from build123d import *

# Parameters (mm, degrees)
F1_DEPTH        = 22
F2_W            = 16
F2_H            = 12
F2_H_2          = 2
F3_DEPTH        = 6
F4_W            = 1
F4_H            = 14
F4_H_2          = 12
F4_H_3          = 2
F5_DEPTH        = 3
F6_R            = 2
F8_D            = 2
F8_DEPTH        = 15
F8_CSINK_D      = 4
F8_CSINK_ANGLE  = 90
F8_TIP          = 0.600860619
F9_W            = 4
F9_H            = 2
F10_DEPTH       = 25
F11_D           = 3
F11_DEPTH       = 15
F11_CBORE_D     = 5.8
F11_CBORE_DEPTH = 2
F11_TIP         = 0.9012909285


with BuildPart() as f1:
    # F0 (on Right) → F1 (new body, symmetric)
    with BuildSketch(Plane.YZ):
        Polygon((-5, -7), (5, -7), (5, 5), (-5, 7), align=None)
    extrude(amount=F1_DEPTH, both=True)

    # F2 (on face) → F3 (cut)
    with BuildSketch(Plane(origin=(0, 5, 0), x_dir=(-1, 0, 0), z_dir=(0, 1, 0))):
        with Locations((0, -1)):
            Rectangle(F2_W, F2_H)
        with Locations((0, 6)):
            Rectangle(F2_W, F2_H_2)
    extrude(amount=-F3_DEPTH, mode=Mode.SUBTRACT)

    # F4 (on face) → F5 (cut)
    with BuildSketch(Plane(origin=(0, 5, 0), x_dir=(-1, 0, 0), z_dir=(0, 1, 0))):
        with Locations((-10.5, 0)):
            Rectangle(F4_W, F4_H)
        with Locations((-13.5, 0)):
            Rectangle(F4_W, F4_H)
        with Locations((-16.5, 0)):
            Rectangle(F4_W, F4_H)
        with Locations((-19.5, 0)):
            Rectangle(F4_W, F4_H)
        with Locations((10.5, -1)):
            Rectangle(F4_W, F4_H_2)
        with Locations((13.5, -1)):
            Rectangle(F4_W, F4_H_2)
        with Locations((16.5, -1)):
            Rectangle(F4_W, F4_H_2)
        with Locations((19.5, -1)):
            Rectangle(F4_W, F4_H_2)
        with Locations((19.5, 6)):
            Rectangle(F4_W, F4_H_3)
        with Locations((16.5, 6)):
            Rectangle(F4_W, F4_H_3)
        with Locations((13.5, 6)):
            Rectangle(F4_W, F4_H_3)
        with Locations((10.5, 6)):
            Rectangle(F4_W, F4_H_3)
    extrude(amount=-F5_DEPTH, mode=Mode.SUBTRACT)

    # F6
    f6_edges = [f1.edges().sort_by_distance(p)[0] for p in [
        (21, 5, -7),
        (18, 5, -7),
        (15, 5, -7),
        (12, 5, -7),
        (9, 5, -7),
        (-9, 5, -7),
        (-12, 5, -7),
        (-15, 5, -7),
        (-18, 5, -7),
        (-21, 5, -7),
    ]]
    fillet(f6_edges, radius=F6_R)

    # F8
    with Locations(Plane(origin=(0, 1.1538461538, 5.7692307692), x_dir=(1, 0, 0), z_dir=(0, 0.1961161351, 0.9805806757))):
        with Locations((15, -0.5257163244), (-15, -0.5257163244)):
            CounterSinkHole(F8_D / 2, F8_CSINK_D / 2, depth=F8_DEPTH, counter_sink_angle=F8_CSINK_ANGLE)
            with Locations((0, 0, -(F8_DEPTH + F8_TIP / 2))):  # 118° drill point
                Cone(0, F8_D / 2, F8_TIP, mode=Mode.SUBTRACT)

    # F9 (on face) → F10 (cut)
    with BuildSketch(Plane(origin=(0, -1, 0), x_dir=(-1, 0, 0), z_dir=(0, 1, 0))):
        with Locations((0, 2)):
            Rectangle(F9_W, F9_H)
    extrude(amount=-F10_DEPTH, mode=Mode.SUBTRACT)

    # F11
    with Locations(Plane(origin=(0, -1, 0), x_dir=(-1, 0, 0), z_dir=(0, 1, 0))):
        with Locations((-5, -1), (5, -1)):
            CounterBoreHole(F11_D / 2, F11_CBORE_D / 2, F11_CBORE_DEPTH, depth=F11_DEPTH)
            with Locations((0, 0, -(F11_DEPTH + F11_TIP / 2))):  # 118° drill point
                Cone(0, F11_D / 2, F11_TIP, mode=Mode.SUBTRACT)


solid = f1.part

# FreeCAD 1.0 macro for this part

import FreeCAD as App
import Part
import Sketcher


def edges_at(feature, points):
    """Names of the edges that pass closest to the given points."""
    edges = feature.Shape.Edges
    near = lambda p: min(range(len(edges)), key=lambda i: edges[i].distToShape(Part.Vertex(*p))[0])
    return sorted({f"Edge{near(p) + 1}" for p in points})


def add_polygon(sketch, points):
    """Adds a closed chain of lines whose ends are joined by coincident constraints."""
    first, n = sketch.GeometryCount, len(points)
    for a, b in zip(points, points[1:] + points[:1]):
        sketch.addGeometry(Part.LineSegment(App.Vector(*a, 0), App.Vector(*b, 0)), False)
    for i in range(n):
        sketch.addConstraint(Sketcher.Constraint("Coincident", first + i, 2, first + (i + 1) % n, 1))

doc = App.newDocument("Part")
body = doc.addObject("PartDesign::Body", "Body")

sketch1 = body.newObject("Sketcher::SketchObject", "Sketch")
sketch1.AttachmentSupport = (doc.getObject("YZ_Plane"), [""])
sketch1.MapMode = "FlatFace"
add_polygon(sketch1, [(-5, -7), (5, -7), (5, 5), (-5, 7)])
sketch1.addConstraint([
    Sketcher.Constraint("Horizontal", 0),
    Sketcher.Constraint("Vertical", 1),
    Sketcher.Constraint("Vertical", 3),
    Sketcher.Constraint("Symmetric", 0, 2, 2, 2, -1, 1),
    Sketcher.Constraint("DistanceX", 0, 1, 0, 2, 10.0),
    Sketcher.Constraint("DistanceY", 1, 1, 1, 2, 12.0),
    Sketcher.Constraint("DistanceY", 3, 2, 3, 1, 14.0),
])
pad1 = body.newObject("PartDesign::Pad", "Pad")
pad1.Profile = sketch1
pad1.Length = 44
pad1.Midplane = True

sketch2 = body.newObject("Sketcher::SketchObject", "Sketch001")
sketch2.AttachmentSupport = (doc.getObject("XZ_Plane"), [""])
sketch2.MapMode = "FlatFace"
sketch2.AttachmentOffset = App.Placement(App.Vector(0, 0, -5), App.Rotation())
add_polygon(sketch2, [(8, -7), (-8, -7), (-8, 7), (8, 7)])
sketch2.addConstraint([
    Sketcher.Constraint("Horizontal", 0),
    Sketcher.Constraint("Vertical", 1),
    Sketcher.Constraint("Horizontal", 2),
    Sketcher.Constraint("Vertical", 3),
    Sketcher.Constraint("Symmetric", 0, 2, 2, 2, -1, 1),
    Sketcher.Constraint("DistanceX", 0, 2, 0, 1, 16.0),
    Sketcher.Constraint("DistanceY", 1, 1, 1, 2, 14.0),
])
pocket1 = body.newObject("PartDesign::Pocket", "Pocket")
pocket1.Profile = sketch2
pocket1.Length = 6
pocket1.Reversed = True

sketch3 = body.newObject("Sketcher::SketchObject", "Sketch002")
sketch3.AttachmentSupport = (doc.getObject("XZ_Plane"), [""])
sketch3.MapMode = "FlatFace"
sketch3.AttachmentOffset = App.Placement(App.Vector(0, 0, -5), App.Rotation())
add_polygon(sketch3, [(11, 7), (11, -7), (10, -7), (10, 7)])
add_polygon(sketch3, [(14, 7), (14, -7), (13, -7), (13, 7)])
add_polygon(sketch3, [(17, 7), (17, -7), (16, -7), (16, 7)])
add_polygon(sketch3, [(20, 7), (20, -7), (19, -7), (19, 7)])
add_polygon(sketch3, [(-10, -7), (-11, -7), (-11, 7), (-10, 7)])
add_polygon(sketch3, [(-13, -7), (-14, -7), (-14, 7), (-13, 7)])
add_polygon(sketch3, [(-16, -7), (-17, -7), (-17, 7), (-16, 7)])
add_polygon(sketch3, [(-19, -7), (-20, -7), (-20, 7), (-19, 7)])
sketch3.addConstraint([
    Sketcher.Constraint("Vertical", 0),
    Sketcher.Constraint("Horizontal", 1),
    Sketcher.Constraint("Vertical", 2),
    Sketcher.Constraint("Horizontal", 3),
    Sketcher.Constraint("Vertical", 4),
    Sketcher.Constraint("Horizontal", 5),
    Sketcher.Constraint("Vertical", 6),
    Sketcher.Constraint("Horizontal", 7),
    Sketcher.Constraint("Vertical", 8),
    Sketcher.Constraint("Horizontal", 9),
    Sketcher.Constraint("Vertical", 10),
    Sketcher.Constraint("Horizontal", 11),
    Sketcher.Constraint("Vertical", 12),
    Sketcher.Constraint("Horizontal", 13),
    Sketcher.Constraint("Vertical", 14),
    Sketcher.Constraint("Horizontal", 15),
    Sketcher.Constraint("Horizontal", 16),
    Sketcher.Constraint("Vertical", 17),
    Sketcher.Constraint("Horizontal", 18),
    Sketcher.Constraint("Vertical", 19),
    Sketcher.Constraint("Horizontal", 20),
    Sketcher.Constraint("Vertical", 21),
    Sketcher.Constraint("Horizontal", 22),
    Sketcher.Constraint("Vertical", 23),
    Sketcher.Constraint("Horizontal", 24),
    Sketcher.Constraint("Vertical", 25),
    Sketcher.Constraint("Horizontal", 26),
    Sketcher.Constraint("Vertical", 27),
    Sketcher.Constraint("Horizontal", 28),
    Sketcher.Constraint("Vertical", 29),
    Sketcher.Constraint("Horizontal", 30),
    Sketcher.Constraint("Vertical", 31),
    Sketcher.Constraint("Symmetric", 3, 2, 16, 2, -1, 1),
    Sketcher.Constraint("Symmetric", 1, 2, 18, 2, -1, 1),
    Sketcher.Constraint("Symmetric", 7, 2, 20, 2, -1, 1),
    Sketcher.Constraint("Symmetric", 5, 2, 22, 2, -1, 1),
    Sketcher.Constraint("Symmetric", 11, 2, 24, 2, -1, 1),
    Sketcher.Constraint("Symmetric", 9, 2, 26, 2, -1, 1),
    Sketcher.Constraint("Symmetric", 15, 2, 28, 2, -1, 1),
    Sketcher.Constraint("Symmetric", 13, 2, 30, 2, -1, 1),
    Sketcher.Constraint("Horizontal", 1, 2, 4, 2),
    Sketcher.Constraint("Horizontal", 3, 2, 6, 2),
    Sketcher.Constraint("Horizontal", 5, 2, 8, 2),
    Sketcher.Constraint("Horizontal", 7, 2, 10, 2),
    Sketcher.Constraint("Horizontal", 9, 2, 12, 2),
    Sketcher.Constraint("Horizontal", 11, 2, 14, 2),
    Sketcher.Constraint("Horizontal", 13, 2, 16, 2),
    Sketcher.Constraint("Equal", 3, 5),
    Sketcher.Constraint("Equal", 7, 9),
    Sketcher.Constraint("Equal", 11, 13),
    Sketcher.Constraint("DistanceX", 1, 2, 1, 1, 1.0),
    Sketcher.Constraint("DistanceY", 0, 2, 0, 1, 14.0),
    Sketcher.Constraint("DistanceX", -1, 1, 0, 2, 11.0),
    Sketcher.Constraint("DistanceX", -1, 1, 4, 2, 14.0),
    Sketcher.Constraint("DistanceX", -1, 1, 8, 2, 17.0),
    Sketcher.Constraint("DistanceX", -1, 1, 12, 2, 20.0),
])
pocket2 = body.newObject("PartDesign::Pocket", "Pocket001")
pocket2.Profile = sketch3
pocket2.Length = 3
pocket2.Reversed = True
doc.recompute()

fillet = body.newObject("PartDesign::Fillet", "Fillet")
fillet.Base = (pocket2, edges_at(pocket2, [
    (21, 5, -7),
    (18, 5, -7),
    (15, 5, -7),
    (12, 5, -7),
    (9, 5, -7),
    (-9, 5, -7),
    (-12, 5, -7),
    (-15, 5, -7),
    (-18, 5, -7),
    (-21, 5, -7),
]))
fillet.Radius = 2

sketch4 = body.newObject("Sketcher::SketchObject", "Sketch003")
sketch4.Placement = App.Placement(App.Vector(0, 1.153846, 5.769231), App.Rotation(App.Vector(1, 0, 0), App.Vector(0, 0.980580676, -0.196116135), App.Vector(0, 0.196116135, 0.980580676), "ZXY"))
sketch4.addGeometry([
    Part.Circle(App.Vector(15, -0.525716, 0), App.Vector(0, 0, 1), 1),
    Part.Circle(App.Vector(-15, -0.525716, 0), App.Vector(0, 0, 1), 1),
], False)
sketch4.addConstraint([
    Sketcher.Constraint("Equal", 0, 1),
    Sketcher.Constraint("Symmetric", 0, 3, 1, 3, -2),
    Sketcher.Constraint("Diameter", 0, 2.0),
    Sketcher.Constraint("DistanceX", -1, 1, 0, 3, 15.0),
    Sketcher.Constraint("DistanceY", 0, 3, -1, 1, 0.525716),
])
doc.recompute()
hole = body.newObject("PartDesign::Hole", "Hole")
hole.Profile = sketch4
hole.ThreadType = "None"
hole.Diameter = 2
hole.DepthType = "Dimension"
hole.Depth = 15
hole.DrillPoint = "Angled"
hole.DrillPointAngle = 118
hole.HoleCutType = "Countersink"
hole.HoleCutDiameter = 4
hole.HoleCutCountersinkAngle = 90

sketch5 = body.newObject("Sketcher::SketchObject", "Sketch004")
sketch5.AttachmentSupport = (doc.getObject("XZ_Plane"), [""])
sketch5.MapMode = "FlatFace"
sketch5.AttachmentOffset = App.Placement(App.Vector(0, 0, 1), App.Rotation())
add_polygon(sketch5, [(2, 3), (2, 1), (-2, 1), (-2, 3)])
sketch5.addConstraint([
    Sketcher.Constraint("Vertical", 0),
    Sketcher.Constraint("Horizontal", 1),
    Sketcher.Constraint("Vertical", 2),
    Sketcher.Constraint("Horizontal", 3),
    Sketcher.Constraint("DistanceX", 1, 2, 1, 1, 4.0),
    Sketcher.Constraint("DistanceY", 0, 2, 0, 1, 2.0),
    Sketcher.Constraint("DistanceX", -1, 1, 0, 2, 2.0),
    Sketcher.Constraint("DistanceY", -1, 1, 0, 2, 1.0),
])
pocket3 = body.newObject("PartDesign::Pocket", "Pocket002")
pocket3.Profile = sketch5
pocket3.Length = 25
pocket3.Reversed = True

sketch6 = body.newObject("Sketcher::SketchObject", "Sketch005")
sketch6.AttachmentSupport = (doc.getObject("XZ_Plane"), [""])
sketch6.MapMode = "FlatFace"
sketch6.AttachmentOffset = App.Placement(App.Vector(0, 0, 1), App.Rotation())
sketch6.addGeometry([
    Part.Circle(App.Vector(5, -1, 0), App.Vector(0, 0, 1), 1.5),
    Part.Circle(App.Vector(-5, -1, 0), App.Vector(0, 0, 1), 1.5),
], False)
sketch6.addConstraint([
    Sketcher.Constraint("Equal", 0, 1),
    Sketcher.Constraint("Symmetric", 0, 3, 1, 3, -2),
    Sketcher.Constraint("Diameter", 0, 3.0),
    Sketcher.Constraint("DistanceX", -1, 1, 0, 3, 5.0),
    Sketcher.Constraint("DistanceY", 0, 3, -1, 1, 1.0),
])
doc.recompute()
hole2 = body.newObject("PartDesign::Hole", "Hole001")
hole2.Profile = sketch6
hole2.ThreadType = "None"
hole2.Diameter = 3
hole2.DepthType = "Dimension"
hole2.Depth = 15
hole2.DrillPoint = "Angled"
hole2.DrillPointAngle = 118
hole2.HoleCutType = "Counterbore"
hole2.HoleCutDiameter = 5.8
hole2.HoleCutDepth = 2
hole2.Reversed = True

doc.recompute()
